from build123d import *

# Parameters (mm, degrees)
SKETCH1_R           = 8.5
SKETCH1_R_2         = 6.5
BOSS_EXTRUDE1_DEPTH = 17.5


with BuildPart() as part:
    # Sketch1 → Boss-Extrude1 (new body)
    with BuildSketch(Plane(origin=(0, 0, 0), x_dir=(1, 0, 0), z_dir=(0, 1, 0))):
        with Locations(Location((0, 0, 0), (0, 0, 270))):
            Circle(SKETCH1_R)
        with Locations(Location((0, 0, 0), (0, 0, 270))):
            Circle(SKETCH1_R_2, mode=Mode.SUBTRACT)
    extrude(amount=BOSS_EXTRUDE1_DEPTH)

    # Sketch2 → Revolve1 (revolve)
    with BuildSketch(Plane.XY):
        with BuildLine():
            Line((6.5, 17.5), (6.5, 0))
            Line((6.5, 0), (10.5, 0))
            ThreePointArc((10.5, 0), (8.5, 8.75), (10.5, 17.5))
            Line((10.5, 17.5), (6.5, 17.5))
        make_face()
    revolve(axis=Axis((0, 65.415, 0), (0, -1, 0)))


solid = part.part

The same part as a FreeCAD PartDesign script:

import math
import FreeCAD as App
import Part
import Sketcher

V = App.Vector
Q = App.Units.Quantity

doc = App.newDocument("Part")
body = doc.addObject("PartDesign::Body", "Body")

sketch1 = body.newObject("Sketcher::SketchObject", "Sketch")
sketch1.AttachmentSupport = (doc.getObject("XZ_Plane"), [""])
sketch1.MapMode = "FlatFace"
sketch1.addGeometry(Part.Circle(V(0, 0, 0), V(0, 0, 1), 8), False)
sketch1.addGeometry(Part.Circle(V(0, 0, 0), V(0, 0, 1), 6), False)
sketch1.addConstraint(Sketcher.Constraint("Coincident", 0, 3, -1, 1))
sketch1.addConstraint(Sketcher.Constraint("Coincident", 1, 3, -1, 1))
sketch1.addConstraint(Sketcher.Constraint("Diameter", 0, Q("17 mm")))
sketch1.addConstraint(Sketcher.Constraint("Diameter", 1, Q("13 mm")))
pad1 = body.newObject("PartDesign::Pad", "Pad")
pad1.Profile = sketch1
pad1.Length = 17.5
pad1.Reversed = True

sketch2 = body.newObject("Sketcher::SketchObject", "Sketch001")
sketch2.AttachmentSupport = (doc.getObject("XY_Plane"), [""])
sketch2.MapMode = "FlatFace"
sketch2.addGeometry(Part.LineSegment(V(6.5, 17.5, 0), V(6.5, 0, 0)), False)
sketch2.addGeometry(Part.LineSegment(V(6.5, 0, 0), V(10.5, 0, 0)), False)
sketch2.addGeometry(Part.ArcOfCircle(Part.Circle(V(28.6, 8.8, 0), V(0, 0, 1), 20.1), math.radians(154), math.radians(206)), False)
sketch2.addGeometry(Part.LineSegment(V(10.5, 17.5, 0), V(6.5, 17.5, 0)), False)
sketch2.addConstraint(Sketcher.Constraint("Coincident", 0, 2, 1, 1))
sketch2.addConstraint(Sketcher.Constraint("Coincident", 1, 2, 2, 2))
sketch2.addConstraint(Sketcher.Constraint("Coincident", 2, 1, 3, 1))
sketch2.addConstraint(Sketcher.Constraint("Coincident", 3, 2, 0, 1))
sketch2.addConstraint(Sketcher.Constraint("Vertical", 0))
sketch2.addConstraint(Sketcher.Constraint("Horizontal", 1))
sketch2.addConstraint(Sketcher.Constraint("Horizontal", 3))
sketch2.addConstraint(Sketcher.Constraint("PointOnObject", 0, 2, -1))
sketch2.addConstraint(Sketcher.Constraint("Vertical", 1, 2, 2, 1))
sketch2.addConstraint(Sketcher.Constraint("DistanceX", 1, 1, 1, 2, Q("4 mm")))
sketch2.addConstraint(Sketcher.Constraint("DistanceY", 0, 2, 0, 1, Q("17.5 mm")))
sketch2.addConstraint(Sketcher.Constraint("DistanceX", -1, 1, 0, 2, Q("6.5 mm")))
sketch2.addConstraint(Sketcher.Constraint("Radius", 2, Q("20.140625 mm")))
revolution = body.newObject("PartDesign::Revolution", "Revolution")
revolution.Profile = sketch2
revolution.ReferenceAxis = (sketch2, ["V_Axis"])
revolution.Angle = 360

doc.recompute()
